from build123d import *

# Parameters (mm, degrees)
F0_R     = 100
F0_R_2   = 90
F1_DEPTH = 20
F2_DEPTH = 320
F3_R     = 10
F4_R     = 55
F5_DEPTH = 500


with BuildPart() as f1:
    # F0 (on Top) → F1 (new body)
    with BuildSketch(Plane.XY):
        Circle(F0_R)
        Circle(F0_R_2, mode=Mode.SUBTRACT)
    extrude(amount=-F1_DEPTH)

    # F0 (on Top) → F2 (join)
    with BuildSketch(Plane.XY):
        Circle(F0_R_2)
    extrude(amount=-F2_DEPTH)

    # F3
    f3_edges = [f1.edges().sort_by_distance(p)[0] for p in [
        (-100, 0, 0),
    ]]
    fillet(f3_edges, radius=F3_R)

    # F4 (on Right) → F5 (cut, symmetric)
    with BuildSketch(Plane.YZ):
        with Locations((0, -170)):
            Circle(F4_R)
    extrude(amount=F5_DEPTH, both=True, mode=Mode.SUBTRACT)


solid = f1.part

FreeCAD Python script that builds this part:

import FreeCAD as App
import Part
import Sketcher

V = App.Vector


def edges_at(feature, points):
    """Names of the edges that pass closest to the given points."""
    edges = feature.Shape.Edges
    near = lambda p: min(range(len(edges)), key=lambda i: edges[i].distToShape(Part.Vertex(*p))[0])
    return sorted({f"Edge{near(p) + 1}" for p in points})

doc = App.newDocument("Part")
params = doc.addObject("Spreadsheet::Sheet", "Params")
for row, (alias, value) in enumerate([
    ("sketch1_diameter", "200 mm"),
    ("sketch1_diameter2", "180 mm"),
    ("pad1_length", "20 mm"),
    ("sketch2_diameter", "180 mm"),
    ("pad2_length", "320 mm"),
    ("fillet_radius", "10 mm"),
    ("sketch3_diameter", "110 mm"),
    ("pocket1_length", "1000 mm"),
], start=1):
    params.set(f"A{row}", alias)
    params.set(f"B{row}", "=" + value)
    params.setAlias(f"B{row}", alias)

body = doc.addObject("PartDesign::Body", "Body")

# Sketch on XY plane
sketch1 = body.newObject("Sketcher::SketchObject", "Sketch")
sketch1.AttachmentSupport = (doc.getObject("XY_Plane"), [""])
sketch1.MapMode = "FlatFace"
sketch1.addGeometry(Part.Circle(V(0, 0, 0), V(0, 0, 1), 100), False)
sketch1.addGeometry(Part.Circle(V(0, 0, 0), V(0, 0, 1), 90), False)
sketch1.addConstraint(Sketcher.Constraint("Coincident", 0, 3, -1, 1))
sketch1.addConstraint(Sketcher.Constraint("Coincident", 1, 3, -1, 1))
sketch1.addConstraint(Sketcher.Constraint("Diameter", 0, 200.0))
sketch1.addConstraint(Sketcher.Constraint("Diameter", 1, 180.0))
sketch1.setExpression("Constraints[2]", "Params.sketch1_diameter")
sketch1.setExpression("Constraints[3]", "Params.sketch1_diameter2")
pad1 = body.newObject("PartDesign::Pad", "Pad")
pad1.Profile = sketch1
pad1.setExpression("Length", "Params.pad1_length")
pad1.Reversed = True

# Sketch on XY plane
sketch2 = body.newObject("Sketcher::SketchObject", "Sketch001")
sketch2.AttachmentSupport = (doc.getObject("XY_Plane"), [""])
sketch2.MapMode = "FlatFace"
sketch2.addGeometry(Part.Circle(V(0, 0, 0), V(0, 0, 1), 90), False)
sketch2.addConstraint(Sketcher.Constraint("Coincident", 0, 3, -1, 1))
sketch2.addConstraint(Sketcher.Constraint("Diameter", 0, 180.0))
sketch2.setExpression("Constraints[1]", "Params.sketch2_diameter")
pad2 = body.newObject("PartDesign::Pad", "Pad001")
pad2.Profile = sketch2
pad2.setExpression("Length", "Params.pad2_length")
pad2.Reversed = True
doc.recompute()

fillet = body.newObject("PartDesign::Fillet", "Fillet")
fillet.Base = (pad2, edges_at(pad2, [(-100, 0, 0)]))
fillet.setExpression("Radius", "Params.fillet_radius")

# Sketch on YZ plane
sketch3 = body.newObject("Sketcher::SketchObject", "Sketch002")
sketch3.AttachmentSupport = (doc.getObject("YZ_Plane"), [""])
sketch3.MapMode = "FlatFace"
sketch3.addGeometry(Part.Circle(V(0, -170, 0), V(0, 0, 1), 55), False)
sketch3.addConstraint(Sketcher.Constraint("PointOnObject", 0, 3, -2))
sketch3.addConstraint(Sketcher.Constraint("Diameter", 0, 110.0))
sketch3.addConstraint(Sketcher.Constraint("DistanceY", 0, 3, -1, 1, 170.0))
sketch3.setExpression("Constraints[1]", "Params.sketch3_diameter")
pocket1 = body.newObject("PartDesign::Pocket", "Pocket")
pocket1.Profile = sketch3
pocket1.setExpression("Length", "Params.pocket1_length")
pocket1.Midplane = True

doc.recompute()
